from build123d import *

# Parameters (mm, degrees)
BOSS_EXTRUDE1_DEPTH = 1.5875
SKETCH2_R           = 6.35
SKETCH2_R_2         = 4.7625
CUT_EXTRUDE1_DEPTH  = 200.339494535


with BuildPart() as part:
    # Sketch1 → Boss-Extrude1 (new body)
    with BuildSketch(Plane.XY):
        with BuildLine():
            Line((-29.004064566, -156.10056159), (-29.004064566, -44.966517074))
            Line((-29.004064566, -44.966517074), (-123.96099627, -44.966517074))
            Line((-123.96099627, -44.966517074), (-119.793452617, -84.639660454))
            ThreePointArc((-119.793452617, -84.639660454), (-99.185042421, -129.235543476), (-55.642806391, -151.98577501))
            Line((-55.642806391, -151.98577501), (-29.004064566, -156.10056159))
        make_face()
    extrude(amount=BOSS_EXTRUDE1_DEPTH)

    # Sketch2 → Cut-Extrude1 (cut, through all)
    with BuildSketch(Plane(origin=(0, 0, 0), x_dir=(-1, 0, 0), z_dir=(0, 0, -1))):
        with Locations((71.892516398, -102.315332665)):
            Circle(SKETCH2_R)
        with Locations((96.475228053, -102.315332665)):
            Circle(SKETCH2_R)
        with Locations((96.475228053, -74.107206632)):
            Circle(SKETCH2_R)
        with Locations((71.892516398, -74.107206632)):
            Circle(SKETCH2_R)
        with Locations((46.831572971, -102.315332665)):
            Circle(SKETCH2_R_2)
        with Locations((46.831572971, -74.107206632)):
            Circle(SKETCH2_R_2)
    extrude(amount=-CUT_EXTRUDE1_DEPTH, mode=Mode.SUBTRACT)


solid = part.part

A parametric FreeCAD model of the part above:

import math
import FreeCAD as App
import Part
import Sketcher
from FreeCAD import Vector
Q = App.Units.Quantity

doc = App.newDocument("Part")
body = doc.addObject("PartDesign::Body", "Body")

# Sketch on XY plane
sketch1 = body.newObject("Sketcher::SketchObject", "Sketch")
sketch1.AttachmentSupport = (doc.getObject("XY_Plane"), [""])
sketch1.MapMode = "FlatFace"
sketch1.addGeometry([
    Part.LineSegment(Vector(-29.004065, -156.100562, 0), Vector(-29.004065, -44.966517, 0)),  # 0
    Part.LineSegment(Vector(-29.004065, -44.966517, 0), Vector(-123.960996, -44.966517, 0)),  # 1
    Part.LineSegment(Vector(-123.960996, -44.966517, 0), Vector(-119.793453, -84.63966, 0)),  # 2
    Part.ArcOfCircle(Part.Circle(Vector(-44.010433, -76.678884, 0), Vector(0, 0, 1), 76.2), math.radians(-174.003245), math.radians(-98.780866)),  # 3
    Part.LineSegment(Vector(-55.642806, -151.985775, 0), Vector(-29.004065, -156.100562, 0)),  # 4
], False)
sketch1.addConstraint([
    Sketcher.Constraint("Coincident", 0, 2, 1, 1),
    Sketcher.Constraint("Coincident", 1, 2, 2, 1),
    Sketcher.Constraint("Tangent", 2, 2, 3, 1),
    Sketcher.Constraint("Tangent", 3, 2, 4, 1),
    Sketcher.Constraint("Coincident", 4, 2, 0, 1),
    Sketcher.Constraint("Vertical", 0),
    Sketcher.Constraint("Horizontal", 1),
    Sketcher.Constraint("Radius", 3, Q("3 in")),
    Sketcher.Constraint("DistanceX", 1, 2, 1, 1, 94.956932),
    Sketcher.Constraint("DistanceY", 4, 2, 2, 2, 71.460901),
    Sketcher.Constraint("DistanceY", 0, 1, 0, 2, 111.134045),
    Sketcher.Constraint("DistanceY", 2, 2, -1, 1, 84.63966),
    Sketcher.Constraint("DistanceX", 3, 3, 0, 2, 15.006369),
    Sketcher.Constraint("DistanceX", 3, 3, -1, 1, 44.010433),
])
pad1 = body.newObject("PartDesign::Pad", "Pad")
pad1.Profile = sketch1
pad1.Length = Q("0.0625 in")

# Sketch on XY plane
sketch2 = body.newObject("Sketcher::SketchObject", "Sketch001")
sketch2.AttachmentSupport = (doc.getObject("XY_Plane"), [""])
sketch2.MapMode = "FlatFace"
sketch2.addGeometry([
    Part.Circle(Vector(-71.892516, -102.315333, 0), Vector(0, 0, 1), 6.35),  # 0
    Part.Circle(Vector(-96.475228, -102.315333, 0), Vector(0, 0, 1), 6.35),  # 1
    Part.Circle(Vector(-96.475228, -74.107207, 0), Vector(0, 0, 1), 6.35),  # 2
    Part.Circle(Vector(-71.892516, -74.107207, 0), Vector(0, 0, 1), 6.35),  # 3
    Part.Circle(Vector(-46.831573, -102.315333, 0), Vector(0, 0, 1), 4.7625),  # 4
    Part.Circle(Vector(-46.831573, -74.107207, 0), Vector(0, 0, 1), 4.7625),  # 5
], False)
sketch2.addConstraint([
    Sketcher.Constraint("Equal", 0, 1),
    Sketcher.Constraint("Equal", 1, 2),
    Sketcher.Constraint("Equal", 2, 3),
    Sketcher.Constraint("Equal", 4, 5),
    Sketcher.Constraint("Horizontal", 0, 3, 1, 3),
    Sketcher.Constraint("Horizontal", 2, 3, 3, 3),
    Sketcher.Constraint("Horizontal", 1, 3, 4, 3),
    Sketcher.Constraint("Horizontal", 3, 3, 5, 3),
    Sketcher.Constraint("Vertical", 1, 3, 2, 3),
    Sketcher.Constraint("Vertical", 0, 3, 3, 3),
    Sketcher.Constraint("Vertical", 4, 3, 5, 3),
    Sketcher.Constraint("Diameter", 0, Q("0.5 in")),
    Sketcher.Constraint("Diameter", 4, Q("0.375 in")),
    Sketcher.Constraint("DistanceX", 1, 3, -1, 1, 96.475228),
    Sketcher.Constraint("DistanceX", 1, 3, 0, 3, 24.582712),
    Sketcher.Constraint("DistanceY", 0, 3, -1, 1, 102.315333),
    Sketcher.Constraint("DistanceY", 2, 3, -1, 1, 74.107207),
    Sketcher.Constraint("DistanceX", 4, 3, -1, 1, 46.831573),
])
pocket1 = body.newObject("PartDesign::Pocket", "Pocket")
pocket1.Profile = sketch2
pocket1.Type = "ThroughAll"
pocket1.Reversed = True

doc.recompute()
